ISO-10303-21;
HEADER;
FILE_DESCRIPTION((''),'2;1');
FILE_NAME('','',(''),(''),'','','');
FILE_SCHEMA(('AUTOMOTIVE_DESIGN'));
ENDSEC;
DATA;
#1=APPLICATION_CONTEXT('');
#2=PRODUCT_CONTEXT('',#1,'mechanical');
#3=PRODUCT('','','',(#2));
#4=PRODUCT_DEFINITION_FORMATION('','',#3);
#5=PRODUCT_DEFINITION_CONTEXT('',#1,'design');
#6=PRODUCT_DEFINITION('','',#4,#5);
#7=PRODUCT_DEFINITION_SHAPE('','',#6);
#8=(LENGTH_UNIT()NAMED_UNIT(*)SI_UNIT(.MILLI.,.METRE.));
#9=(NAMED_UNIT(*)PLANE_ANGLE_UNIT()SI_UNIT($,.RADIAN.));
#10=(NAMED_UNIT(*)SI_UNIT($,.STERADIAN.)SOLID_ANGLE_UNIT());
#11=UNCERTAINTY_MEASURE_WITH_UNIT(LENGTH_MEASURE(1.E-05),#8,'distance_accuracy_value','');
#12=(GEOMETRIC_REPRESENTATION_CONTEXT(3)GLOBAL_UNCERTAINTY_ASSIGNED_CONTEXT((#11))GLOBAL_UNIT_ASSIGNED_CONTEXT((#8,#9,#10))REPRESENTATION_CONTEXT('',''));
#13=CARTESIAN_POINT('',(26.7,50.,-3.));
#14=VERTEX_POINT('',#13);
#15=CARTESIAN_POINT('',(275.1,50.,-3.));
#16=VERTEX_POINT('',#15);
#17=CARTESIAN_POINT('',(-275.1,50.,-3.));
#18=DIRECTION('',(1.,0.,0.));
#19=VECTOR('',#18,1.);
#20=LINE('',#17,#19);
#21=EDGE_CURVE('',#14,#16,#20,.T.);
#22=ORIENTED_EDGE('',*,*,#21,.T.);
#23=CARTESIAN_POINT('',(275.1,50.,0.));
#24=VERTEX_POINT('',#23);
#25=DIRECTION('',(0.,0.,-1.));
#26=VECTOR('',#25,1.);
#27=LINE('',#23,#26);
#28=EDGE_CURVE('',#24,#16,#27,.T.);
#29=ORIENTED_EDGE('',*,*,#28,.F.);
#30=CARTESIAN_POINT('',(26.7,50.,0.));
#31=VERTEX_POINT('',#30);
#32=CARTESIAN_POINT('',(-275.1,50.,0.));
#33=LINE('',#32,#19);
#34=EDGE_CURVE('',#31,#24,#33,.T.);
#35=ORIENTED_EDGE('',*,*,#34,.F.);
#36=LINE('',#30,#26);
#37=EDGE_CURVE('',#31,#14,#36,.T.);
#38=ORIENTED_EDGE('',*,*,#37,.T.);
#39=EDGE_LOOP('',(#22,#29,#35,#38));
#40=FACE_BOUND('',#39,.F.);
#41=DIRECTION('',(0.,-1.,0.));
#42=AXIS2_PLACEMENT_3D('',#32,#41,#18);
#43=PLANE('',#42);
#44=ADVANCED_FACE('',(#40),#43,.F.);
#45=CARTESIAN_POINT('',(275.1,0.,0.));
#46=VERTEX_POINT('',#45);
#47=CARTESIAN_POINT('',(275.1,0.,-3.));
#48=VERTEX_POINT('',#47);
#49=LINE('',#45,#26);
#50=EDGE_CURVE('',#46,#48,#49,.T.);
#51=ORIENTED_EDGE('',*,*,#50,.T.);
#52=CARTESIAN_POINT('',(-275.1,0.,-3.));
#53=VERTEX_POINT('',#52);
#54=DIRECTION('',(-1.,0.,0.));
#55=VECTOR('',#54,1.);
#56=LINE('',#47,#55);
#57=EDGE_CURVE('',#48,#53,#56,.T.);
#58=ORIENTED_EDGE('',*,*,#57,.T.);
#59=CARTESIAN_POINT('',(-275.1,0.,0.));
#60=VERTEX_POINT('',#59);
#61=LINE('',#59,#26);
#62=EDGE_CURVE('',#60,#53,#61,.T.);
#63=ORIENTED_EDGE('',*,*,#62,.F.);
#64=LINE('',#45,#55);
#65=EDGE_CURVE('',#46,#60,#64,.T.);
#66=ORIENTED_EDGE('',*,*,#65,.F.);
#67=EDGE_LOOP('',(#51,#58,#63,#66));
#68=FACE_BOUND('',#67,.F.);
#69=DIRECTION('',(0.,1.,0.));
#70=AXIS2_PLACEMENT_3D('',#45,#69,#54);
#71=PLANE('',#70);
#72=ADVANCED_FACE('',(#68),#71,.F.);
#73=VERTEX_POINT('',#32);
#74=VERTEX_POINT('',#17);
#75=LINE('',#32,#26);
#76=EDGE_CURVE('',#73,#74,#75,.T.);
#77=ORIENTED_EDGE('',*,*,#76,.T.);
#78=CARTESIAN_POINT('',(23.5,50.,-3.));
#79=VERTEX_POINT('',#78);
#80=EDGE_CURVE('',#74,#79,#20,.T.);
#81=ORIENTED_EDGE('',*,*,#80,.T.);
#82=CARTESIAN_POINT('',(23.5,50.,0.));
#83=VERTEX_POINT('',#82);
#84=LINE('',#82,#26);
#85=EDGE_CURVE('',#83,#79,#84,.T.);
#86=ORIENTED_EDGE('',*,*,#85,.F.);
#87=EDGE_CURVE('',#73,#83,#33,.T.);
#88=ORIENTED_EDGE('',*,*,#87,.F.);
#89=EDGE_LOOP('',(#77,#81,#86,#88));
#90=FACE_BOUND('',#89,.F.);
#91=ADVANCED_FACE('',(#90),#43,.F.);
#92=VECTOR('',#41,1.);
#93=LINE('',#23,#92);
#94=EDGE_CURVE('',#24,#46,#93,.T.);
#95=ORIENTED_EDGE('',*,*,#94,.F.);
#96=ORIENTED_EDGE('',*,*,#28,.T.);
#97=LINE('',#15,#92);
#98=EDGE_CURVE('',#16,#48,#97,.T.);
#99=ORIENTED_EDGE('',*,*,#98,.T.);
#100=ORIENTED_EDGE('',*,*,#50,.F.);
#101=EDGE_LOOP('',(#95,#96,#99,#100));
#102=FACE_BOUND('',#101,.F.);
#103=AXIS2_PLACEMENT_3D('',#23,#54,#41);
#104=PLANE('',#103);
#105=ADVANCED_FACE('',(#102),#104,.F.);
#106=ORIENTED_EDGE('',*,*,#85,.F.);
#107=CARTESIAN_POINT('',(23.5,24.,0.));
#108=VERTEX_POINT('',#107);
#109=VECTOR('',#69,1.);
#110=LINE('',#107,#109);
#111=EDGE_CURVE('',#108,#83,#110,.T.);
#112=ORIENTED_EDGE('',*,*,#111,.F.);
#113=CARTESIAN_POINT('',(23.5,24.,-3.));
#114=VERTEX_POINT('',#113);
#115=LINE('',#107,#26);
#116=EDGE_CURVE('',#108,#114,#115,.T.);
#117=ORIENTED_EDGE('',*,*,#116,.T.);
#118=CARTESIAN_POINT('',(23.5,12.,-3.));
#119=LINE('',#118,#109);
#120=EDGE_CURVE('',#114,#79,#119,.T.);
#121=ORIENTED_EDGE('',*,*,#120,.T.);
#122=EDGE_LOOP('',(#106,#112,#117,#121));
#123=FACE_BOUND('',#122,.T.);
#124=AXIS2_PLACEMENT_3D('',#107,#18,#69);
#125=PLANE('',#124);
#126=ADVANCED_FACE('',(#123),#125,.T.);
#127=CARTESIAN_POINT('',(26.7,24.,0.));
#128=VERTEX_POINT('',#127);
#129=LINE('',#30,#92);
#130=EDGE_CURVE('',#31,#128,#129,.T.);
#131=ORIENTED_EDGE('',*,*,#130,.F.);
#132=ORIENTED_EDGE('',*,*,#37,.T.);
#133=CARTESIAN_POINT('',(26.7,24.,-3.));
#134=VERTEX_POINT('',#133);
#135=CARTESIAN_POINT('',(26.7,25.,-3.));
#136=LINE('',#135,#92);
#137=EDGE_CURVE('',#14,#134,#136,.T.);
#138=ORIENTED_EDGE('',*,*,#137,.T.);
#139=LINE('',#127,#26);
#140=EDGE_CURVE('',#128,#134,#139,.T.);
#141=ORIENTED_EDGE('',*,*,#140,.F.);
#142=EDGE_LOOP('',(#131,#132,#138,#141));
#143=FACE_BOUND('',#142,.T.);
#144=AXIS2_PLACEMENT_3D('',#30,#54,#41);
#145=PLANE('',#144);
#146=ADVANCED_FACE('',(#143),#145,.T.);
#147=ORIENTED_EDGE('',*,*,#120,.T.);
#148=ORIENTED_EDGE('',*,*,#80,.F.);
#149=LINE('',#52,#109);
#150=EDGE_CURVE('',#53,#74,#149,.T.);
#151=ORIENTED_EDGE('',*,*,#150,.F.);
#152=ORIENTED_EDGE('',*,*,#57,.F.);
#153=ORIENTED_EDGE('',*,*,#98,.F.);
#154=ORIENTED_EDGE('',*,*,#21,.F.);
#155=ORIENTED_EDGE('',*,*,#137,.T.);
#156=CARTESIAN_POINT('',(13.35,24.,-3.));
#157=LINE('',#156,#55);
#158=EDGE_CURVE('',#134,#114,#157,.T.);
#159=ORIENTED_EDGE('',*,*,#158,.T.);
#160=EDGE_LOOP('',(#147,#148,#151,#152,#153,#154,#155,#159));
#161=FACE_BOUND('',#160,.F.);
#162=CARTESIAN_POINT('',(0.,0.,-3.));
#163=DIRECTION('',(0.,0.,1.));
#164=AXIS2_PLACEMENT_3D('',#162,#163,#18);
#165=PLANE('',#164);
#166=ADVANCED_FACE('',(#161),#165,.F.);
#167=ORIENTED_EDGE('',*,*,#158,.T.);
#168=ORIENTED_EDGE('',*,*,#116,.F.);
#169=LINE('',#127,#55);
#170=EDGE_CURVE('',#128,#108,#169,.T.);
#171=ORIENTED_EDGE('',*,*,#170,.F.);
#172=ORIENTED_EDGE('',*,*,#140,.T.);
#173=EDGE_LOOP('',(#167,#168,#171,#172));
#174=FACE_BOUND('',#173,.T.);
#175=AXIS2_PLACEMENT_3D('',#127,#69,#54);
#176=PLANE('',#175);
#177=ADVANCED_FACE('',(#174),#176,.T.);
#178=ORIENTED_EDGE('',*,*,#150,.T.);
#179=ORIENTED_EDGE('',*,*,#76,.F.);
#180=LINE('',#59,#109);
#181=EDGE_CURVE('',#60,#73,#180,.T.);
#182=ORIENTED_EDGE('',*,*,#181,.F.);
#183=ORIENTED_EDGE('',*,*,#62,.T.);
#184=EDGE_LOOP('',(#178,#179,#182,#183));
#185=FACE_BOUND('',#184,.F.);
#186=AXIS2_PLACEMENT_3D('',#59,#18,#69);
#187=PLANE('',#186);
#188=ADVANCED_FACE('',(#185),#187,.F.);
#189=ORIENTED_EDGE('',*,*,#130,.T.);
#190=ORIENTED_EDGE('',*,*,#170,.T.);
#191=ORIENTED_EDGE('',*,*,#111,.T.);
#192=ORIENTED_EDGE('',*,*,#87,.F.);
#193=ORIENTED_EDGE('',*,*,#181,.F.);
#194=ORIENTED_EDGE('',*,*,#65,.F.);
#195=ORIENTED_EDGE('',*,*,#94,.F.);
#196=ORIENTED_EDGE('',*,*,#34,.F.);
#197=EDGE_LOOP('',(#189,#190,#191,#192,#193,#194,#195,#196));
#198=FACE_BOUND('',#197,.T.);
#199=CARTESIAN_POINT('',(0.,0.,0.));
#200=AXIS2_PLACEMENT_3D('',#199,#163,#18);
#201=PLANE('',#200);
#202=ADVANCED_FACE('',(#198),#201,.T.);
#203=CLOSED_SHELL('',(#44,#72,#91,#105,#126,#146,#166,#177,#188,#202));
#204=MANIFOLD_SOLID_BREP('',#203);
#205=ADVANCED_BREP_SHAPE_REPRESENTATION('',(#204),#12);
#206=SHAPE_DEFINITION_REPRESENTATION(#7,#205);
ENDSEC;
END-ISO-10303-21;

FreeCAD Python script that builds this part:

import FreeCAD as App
import Part
import Sketcher

V = App.Vector


def add_polygon(sketch, points):
    """Adds a closed chain of lines whose ends are joined by coincident constraints."""
    first, n = sketch.GeometryCount, len(points)
    for a, b in zip(points, points[1:] + points[:1]):
        sketch.addGeometry(Part.LineSegment(App.Vector(*a, 0), App.Vector(*b, 0)), False)
    for i in range(n):
        sketch.addConstraint(Sketcher.Constraint("Coincident", first + i, 2, first + (i + 1) % n, 1))

doc = App.newDocument("Part")
body = doc.addObject("PartDesign::Body", "Body")

# Sketch on XY plane
sketch1 = body.newObject("Sketcher::SketchObject", "Sketch")
sketch1.AttachmentSupport = (doc.getObject("XY_Plane"), [""])
sketch1.MapMode = "FlatFace"
add_polygon(sketch1, [(275, 50), (-275, 50), (-275, 0), (275, 0)])  # lines 0-3
sketch1.addConstraint(Sketcher.Constraint("Horizontal", 0))
sketch1.addConstraint(Sketcher.Constraint("Vertical", 1))
sketch1.addConstraint(Sketcher.Constraint("Horizontal", 2))
sketch1.addConstraint(Sketcher.Constraint("Vertical", 3))
sketch1.addConstraint(Sketcher.Constraint("Symmetric", 1, 2, 2, 2, -1, 1))
sketch1.addConstraint(Sketcher.Constraint("DistanceY", 1, 2, 1, 1, 50.0))
sketch1.addConstraint(Sketcher.Constraint("DistanceX", 0, 2, 0, 1, 550.2))
pad1 = body.newObject("PartDesign::Pad", "Pad")
pad1.Profile = sketch1
pad1.Length = 3
pad1.Reversed = True

# Sketch on XY plane
sketch2 = body.newObject("Sketcher::SketchObject", "Sketch001")
sketch2.AttachmentSupport = (doc.getObject("XY_Plane"), [""])
sketch2.MapMode = "FlatFace"
add_polygon(sketch2, [(26.7, 24), (26.7, 50), (23.5, 50), (23.5, 24)])  # lines 0-3
sketch2.addConstraint(Sketcher.Constraint("Vertical", 0))
sketch2.addConstraint(Sketcher.Constraint("Horizontal", 1))
sketch2.addConstraint(Sketcher.Constraint("Vertical", 2))
sketch2.addConstraint(Sketcher.Constraint("Horizontal", 3))
sketch2.addConstraint(Sketcher.Constraint("DistanceY", 0, 1, 0, 2, 26.0))
sketch2.addConstraint(Sketcher.Constraint("DistanceX", 1, 2, 1, 1, 3.2))
sketch2.addConstraint(Sketcher.Constraint("DistanceY", -1, 1, 0, 2, 50.0))
sketch2.addConstraint(Sketcher.Constraint("DistanceX", -1, 1, 0, 2, 26.7))
pocket1 = body.newObject("PartDesign::Pocket", "Pocket")
pocket1.Profile = sketch2
pocket1.Type = "ThroughAll"

doc.recompute()
